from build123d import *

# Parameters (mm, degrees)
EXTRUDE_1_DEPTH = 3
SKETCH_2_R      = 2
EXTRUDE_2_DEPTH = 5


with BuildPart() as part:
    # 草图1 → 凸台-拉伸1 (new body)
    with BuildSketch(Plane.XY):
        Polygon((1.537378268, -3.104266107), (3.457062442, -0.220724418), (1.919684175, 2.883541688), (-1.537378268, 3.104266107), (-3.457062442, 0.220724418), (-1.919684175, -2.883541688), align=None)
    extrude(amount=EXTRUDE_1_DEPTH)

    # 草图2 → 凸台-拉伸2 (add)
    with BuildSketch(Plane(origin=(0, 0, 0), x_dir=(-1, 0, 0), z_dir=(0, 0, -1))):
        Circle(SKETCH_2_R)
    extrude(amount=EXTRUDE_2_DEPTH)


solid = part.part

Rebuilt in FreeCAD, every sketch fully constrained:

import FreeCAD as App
import Part
import Sketcher

V = App.Vector


def add_polygon(sketch, points):
    """Adds a closed chain of lines whose ends are joined by coincident constraints."""
    first, n = sketch.GeometryCount, len(points)
    for a, b in zip(points, points[1:] + points[:1]):
        sketch.addGeometry(Part.LineSegment(App.Vector(*a, 0), App.Vector(*b, 0)), False)
    for i in range(n):
        sketch.addConstraint(Sketcher.Constraint("Coincident", first + i, 2, first + (i + 1) % n, 1))

doc = App.newDocument("Part")
body = doc.addObject("PartDesign::Body", "Body")

sketch1 = body.newObject("Sketcher::SketchObject", "Sketch")
sketch1.AttachmentSupport = (doc.getObject("XY_Plane"), [""])
sketch1.MapMode = "FlatFace"
add_polygon(sketch1, [(1.5, -3.1), (3.5, -0.2), (1.9, 2.9), (-1.5, 3.1), (-3.5, 0.2), (-1.9, -2.9)])
sketch1.addConstraint([
    Sketcher.Constraint("Symmetric", 0, 2, 3, 2, -1, 1),
    Sketcher.Constraint("Symmetric", 1, 2, 4, 2, -1, 1),
    Sketcher.Constraint("Symmetric", 2, 2, 5, 2, -1, 1),
    Sketcher.Constraint("Equal", 0, 1),
    Sketcher.Constraint("Equal", 1, 2),
    Sketcher.Constraint("Distance", 0, 3.464102),
    Sketcher.Constraint("DistanceY", -1, 1, 1, 2, 2.883542),
    Sketcher.Constraint("DistanceX", 2, 2, -1, 1, 1.537378),
    Sketcher.Constraint("DistanceX", 1, 2, 0, 2, 1.537378),
])
pad1 = body.newObject("PartDesign::Pad", "Pad")
pad1.Profile = sketch1
pad1.Length = 3

sketch2 = body.newObject("Sketcher::SketchObject", "Sketch001")
sketch2.AttachmentSupport = (doc.getObject("XY_Plane"), [""])
sketch2.MapMode = "FlatFace"
sketch2.addGeometry(Part.Circle(V(0, 0, 0), V(0, 0, 1), 2), False)
sketch2.addConstraint([
    Sketcher.Constraint("Coincident", 0, 3, -1, 1),
    Sketcher.Constraint("Diameter", 0, 4.0),
])
pad2 = body.newObject("PartDesign::Pad", "Pad001")
pad2.Profile = sketch2
pad2.Length = 5
pad2.Reversed = True

doc.recompute()
